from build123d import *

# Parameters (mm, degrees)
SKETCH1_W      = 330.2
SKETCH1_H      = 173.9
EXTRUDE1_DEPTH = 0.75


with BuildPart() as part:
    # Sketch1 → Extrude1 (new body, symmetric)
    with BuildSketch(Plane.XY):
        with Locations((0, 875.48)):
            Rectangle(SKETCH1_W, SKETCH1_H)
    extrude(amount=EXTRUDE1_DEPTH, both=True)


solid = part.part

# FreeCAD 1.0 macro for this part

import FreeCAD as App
import Part
import Sketcher
Q = App.Units.Quantity


def add_polygon(sketch, points):
    """Adds a closed chain of lines whose ends are joined by coincident constraints."""
    first, n = sketch.GeometryCount, len(points)
    for a, b in zip(points, points[1:] + points[:1]):
        sketch.addGeometry(Part.LineSegment(App.Vector(*a, 0), App.Vector(*b, 0)), False)
    for i in range(n):
        sketch.addConstraint(Sketcher.Constraint("Coincident", first + i, 2, first + (i + 1) % n, 1))

doc = App.newDocument("Part")
body = doc.addObject("PartDesign::Body", "Body")

sketch1 = body.newObject("Sketcher::SketchObject", "Sketch")
sketch1.AttachmentSupport = (doc.getObject("XY_Plane"), [""])
sketch1.MapMode = "FlatFace"
add_polygon(sketch1, [(-165, 962), (-165, 789), (165, 789), (165, 962)])
sketch1.addConstraint([
    Sketcher.Constraint("Vertical", 0),
    Sketcher.Constraint("Horizontal", 1),
    Sketcher.Constraint("Vertical", 2),
    Sketcher.Constraint("Horizontal", 3),
    Sketcher.Constraint("DistanceX", 1, 1, 1, 2, Q("330.2 mm")),
    Sketcher.Constraint("DistanceY", 0, 2, 0, 1, Q("173.9 mm")),
    Sketcher.Constraint("DistanceX", 0, 2, -1, 1, Q("165.1 mm")),
    Sketcher.Constraint("DistanceY", -1, 1, 0, 2, Q("788.53 mm")),
])
pad1 = body.newObject("PartDesign::Pad", "Pad")
pad1.Profile = sketch1
pad1.Length = 1.5
pad1.Midplane = True

doc.recompute()
